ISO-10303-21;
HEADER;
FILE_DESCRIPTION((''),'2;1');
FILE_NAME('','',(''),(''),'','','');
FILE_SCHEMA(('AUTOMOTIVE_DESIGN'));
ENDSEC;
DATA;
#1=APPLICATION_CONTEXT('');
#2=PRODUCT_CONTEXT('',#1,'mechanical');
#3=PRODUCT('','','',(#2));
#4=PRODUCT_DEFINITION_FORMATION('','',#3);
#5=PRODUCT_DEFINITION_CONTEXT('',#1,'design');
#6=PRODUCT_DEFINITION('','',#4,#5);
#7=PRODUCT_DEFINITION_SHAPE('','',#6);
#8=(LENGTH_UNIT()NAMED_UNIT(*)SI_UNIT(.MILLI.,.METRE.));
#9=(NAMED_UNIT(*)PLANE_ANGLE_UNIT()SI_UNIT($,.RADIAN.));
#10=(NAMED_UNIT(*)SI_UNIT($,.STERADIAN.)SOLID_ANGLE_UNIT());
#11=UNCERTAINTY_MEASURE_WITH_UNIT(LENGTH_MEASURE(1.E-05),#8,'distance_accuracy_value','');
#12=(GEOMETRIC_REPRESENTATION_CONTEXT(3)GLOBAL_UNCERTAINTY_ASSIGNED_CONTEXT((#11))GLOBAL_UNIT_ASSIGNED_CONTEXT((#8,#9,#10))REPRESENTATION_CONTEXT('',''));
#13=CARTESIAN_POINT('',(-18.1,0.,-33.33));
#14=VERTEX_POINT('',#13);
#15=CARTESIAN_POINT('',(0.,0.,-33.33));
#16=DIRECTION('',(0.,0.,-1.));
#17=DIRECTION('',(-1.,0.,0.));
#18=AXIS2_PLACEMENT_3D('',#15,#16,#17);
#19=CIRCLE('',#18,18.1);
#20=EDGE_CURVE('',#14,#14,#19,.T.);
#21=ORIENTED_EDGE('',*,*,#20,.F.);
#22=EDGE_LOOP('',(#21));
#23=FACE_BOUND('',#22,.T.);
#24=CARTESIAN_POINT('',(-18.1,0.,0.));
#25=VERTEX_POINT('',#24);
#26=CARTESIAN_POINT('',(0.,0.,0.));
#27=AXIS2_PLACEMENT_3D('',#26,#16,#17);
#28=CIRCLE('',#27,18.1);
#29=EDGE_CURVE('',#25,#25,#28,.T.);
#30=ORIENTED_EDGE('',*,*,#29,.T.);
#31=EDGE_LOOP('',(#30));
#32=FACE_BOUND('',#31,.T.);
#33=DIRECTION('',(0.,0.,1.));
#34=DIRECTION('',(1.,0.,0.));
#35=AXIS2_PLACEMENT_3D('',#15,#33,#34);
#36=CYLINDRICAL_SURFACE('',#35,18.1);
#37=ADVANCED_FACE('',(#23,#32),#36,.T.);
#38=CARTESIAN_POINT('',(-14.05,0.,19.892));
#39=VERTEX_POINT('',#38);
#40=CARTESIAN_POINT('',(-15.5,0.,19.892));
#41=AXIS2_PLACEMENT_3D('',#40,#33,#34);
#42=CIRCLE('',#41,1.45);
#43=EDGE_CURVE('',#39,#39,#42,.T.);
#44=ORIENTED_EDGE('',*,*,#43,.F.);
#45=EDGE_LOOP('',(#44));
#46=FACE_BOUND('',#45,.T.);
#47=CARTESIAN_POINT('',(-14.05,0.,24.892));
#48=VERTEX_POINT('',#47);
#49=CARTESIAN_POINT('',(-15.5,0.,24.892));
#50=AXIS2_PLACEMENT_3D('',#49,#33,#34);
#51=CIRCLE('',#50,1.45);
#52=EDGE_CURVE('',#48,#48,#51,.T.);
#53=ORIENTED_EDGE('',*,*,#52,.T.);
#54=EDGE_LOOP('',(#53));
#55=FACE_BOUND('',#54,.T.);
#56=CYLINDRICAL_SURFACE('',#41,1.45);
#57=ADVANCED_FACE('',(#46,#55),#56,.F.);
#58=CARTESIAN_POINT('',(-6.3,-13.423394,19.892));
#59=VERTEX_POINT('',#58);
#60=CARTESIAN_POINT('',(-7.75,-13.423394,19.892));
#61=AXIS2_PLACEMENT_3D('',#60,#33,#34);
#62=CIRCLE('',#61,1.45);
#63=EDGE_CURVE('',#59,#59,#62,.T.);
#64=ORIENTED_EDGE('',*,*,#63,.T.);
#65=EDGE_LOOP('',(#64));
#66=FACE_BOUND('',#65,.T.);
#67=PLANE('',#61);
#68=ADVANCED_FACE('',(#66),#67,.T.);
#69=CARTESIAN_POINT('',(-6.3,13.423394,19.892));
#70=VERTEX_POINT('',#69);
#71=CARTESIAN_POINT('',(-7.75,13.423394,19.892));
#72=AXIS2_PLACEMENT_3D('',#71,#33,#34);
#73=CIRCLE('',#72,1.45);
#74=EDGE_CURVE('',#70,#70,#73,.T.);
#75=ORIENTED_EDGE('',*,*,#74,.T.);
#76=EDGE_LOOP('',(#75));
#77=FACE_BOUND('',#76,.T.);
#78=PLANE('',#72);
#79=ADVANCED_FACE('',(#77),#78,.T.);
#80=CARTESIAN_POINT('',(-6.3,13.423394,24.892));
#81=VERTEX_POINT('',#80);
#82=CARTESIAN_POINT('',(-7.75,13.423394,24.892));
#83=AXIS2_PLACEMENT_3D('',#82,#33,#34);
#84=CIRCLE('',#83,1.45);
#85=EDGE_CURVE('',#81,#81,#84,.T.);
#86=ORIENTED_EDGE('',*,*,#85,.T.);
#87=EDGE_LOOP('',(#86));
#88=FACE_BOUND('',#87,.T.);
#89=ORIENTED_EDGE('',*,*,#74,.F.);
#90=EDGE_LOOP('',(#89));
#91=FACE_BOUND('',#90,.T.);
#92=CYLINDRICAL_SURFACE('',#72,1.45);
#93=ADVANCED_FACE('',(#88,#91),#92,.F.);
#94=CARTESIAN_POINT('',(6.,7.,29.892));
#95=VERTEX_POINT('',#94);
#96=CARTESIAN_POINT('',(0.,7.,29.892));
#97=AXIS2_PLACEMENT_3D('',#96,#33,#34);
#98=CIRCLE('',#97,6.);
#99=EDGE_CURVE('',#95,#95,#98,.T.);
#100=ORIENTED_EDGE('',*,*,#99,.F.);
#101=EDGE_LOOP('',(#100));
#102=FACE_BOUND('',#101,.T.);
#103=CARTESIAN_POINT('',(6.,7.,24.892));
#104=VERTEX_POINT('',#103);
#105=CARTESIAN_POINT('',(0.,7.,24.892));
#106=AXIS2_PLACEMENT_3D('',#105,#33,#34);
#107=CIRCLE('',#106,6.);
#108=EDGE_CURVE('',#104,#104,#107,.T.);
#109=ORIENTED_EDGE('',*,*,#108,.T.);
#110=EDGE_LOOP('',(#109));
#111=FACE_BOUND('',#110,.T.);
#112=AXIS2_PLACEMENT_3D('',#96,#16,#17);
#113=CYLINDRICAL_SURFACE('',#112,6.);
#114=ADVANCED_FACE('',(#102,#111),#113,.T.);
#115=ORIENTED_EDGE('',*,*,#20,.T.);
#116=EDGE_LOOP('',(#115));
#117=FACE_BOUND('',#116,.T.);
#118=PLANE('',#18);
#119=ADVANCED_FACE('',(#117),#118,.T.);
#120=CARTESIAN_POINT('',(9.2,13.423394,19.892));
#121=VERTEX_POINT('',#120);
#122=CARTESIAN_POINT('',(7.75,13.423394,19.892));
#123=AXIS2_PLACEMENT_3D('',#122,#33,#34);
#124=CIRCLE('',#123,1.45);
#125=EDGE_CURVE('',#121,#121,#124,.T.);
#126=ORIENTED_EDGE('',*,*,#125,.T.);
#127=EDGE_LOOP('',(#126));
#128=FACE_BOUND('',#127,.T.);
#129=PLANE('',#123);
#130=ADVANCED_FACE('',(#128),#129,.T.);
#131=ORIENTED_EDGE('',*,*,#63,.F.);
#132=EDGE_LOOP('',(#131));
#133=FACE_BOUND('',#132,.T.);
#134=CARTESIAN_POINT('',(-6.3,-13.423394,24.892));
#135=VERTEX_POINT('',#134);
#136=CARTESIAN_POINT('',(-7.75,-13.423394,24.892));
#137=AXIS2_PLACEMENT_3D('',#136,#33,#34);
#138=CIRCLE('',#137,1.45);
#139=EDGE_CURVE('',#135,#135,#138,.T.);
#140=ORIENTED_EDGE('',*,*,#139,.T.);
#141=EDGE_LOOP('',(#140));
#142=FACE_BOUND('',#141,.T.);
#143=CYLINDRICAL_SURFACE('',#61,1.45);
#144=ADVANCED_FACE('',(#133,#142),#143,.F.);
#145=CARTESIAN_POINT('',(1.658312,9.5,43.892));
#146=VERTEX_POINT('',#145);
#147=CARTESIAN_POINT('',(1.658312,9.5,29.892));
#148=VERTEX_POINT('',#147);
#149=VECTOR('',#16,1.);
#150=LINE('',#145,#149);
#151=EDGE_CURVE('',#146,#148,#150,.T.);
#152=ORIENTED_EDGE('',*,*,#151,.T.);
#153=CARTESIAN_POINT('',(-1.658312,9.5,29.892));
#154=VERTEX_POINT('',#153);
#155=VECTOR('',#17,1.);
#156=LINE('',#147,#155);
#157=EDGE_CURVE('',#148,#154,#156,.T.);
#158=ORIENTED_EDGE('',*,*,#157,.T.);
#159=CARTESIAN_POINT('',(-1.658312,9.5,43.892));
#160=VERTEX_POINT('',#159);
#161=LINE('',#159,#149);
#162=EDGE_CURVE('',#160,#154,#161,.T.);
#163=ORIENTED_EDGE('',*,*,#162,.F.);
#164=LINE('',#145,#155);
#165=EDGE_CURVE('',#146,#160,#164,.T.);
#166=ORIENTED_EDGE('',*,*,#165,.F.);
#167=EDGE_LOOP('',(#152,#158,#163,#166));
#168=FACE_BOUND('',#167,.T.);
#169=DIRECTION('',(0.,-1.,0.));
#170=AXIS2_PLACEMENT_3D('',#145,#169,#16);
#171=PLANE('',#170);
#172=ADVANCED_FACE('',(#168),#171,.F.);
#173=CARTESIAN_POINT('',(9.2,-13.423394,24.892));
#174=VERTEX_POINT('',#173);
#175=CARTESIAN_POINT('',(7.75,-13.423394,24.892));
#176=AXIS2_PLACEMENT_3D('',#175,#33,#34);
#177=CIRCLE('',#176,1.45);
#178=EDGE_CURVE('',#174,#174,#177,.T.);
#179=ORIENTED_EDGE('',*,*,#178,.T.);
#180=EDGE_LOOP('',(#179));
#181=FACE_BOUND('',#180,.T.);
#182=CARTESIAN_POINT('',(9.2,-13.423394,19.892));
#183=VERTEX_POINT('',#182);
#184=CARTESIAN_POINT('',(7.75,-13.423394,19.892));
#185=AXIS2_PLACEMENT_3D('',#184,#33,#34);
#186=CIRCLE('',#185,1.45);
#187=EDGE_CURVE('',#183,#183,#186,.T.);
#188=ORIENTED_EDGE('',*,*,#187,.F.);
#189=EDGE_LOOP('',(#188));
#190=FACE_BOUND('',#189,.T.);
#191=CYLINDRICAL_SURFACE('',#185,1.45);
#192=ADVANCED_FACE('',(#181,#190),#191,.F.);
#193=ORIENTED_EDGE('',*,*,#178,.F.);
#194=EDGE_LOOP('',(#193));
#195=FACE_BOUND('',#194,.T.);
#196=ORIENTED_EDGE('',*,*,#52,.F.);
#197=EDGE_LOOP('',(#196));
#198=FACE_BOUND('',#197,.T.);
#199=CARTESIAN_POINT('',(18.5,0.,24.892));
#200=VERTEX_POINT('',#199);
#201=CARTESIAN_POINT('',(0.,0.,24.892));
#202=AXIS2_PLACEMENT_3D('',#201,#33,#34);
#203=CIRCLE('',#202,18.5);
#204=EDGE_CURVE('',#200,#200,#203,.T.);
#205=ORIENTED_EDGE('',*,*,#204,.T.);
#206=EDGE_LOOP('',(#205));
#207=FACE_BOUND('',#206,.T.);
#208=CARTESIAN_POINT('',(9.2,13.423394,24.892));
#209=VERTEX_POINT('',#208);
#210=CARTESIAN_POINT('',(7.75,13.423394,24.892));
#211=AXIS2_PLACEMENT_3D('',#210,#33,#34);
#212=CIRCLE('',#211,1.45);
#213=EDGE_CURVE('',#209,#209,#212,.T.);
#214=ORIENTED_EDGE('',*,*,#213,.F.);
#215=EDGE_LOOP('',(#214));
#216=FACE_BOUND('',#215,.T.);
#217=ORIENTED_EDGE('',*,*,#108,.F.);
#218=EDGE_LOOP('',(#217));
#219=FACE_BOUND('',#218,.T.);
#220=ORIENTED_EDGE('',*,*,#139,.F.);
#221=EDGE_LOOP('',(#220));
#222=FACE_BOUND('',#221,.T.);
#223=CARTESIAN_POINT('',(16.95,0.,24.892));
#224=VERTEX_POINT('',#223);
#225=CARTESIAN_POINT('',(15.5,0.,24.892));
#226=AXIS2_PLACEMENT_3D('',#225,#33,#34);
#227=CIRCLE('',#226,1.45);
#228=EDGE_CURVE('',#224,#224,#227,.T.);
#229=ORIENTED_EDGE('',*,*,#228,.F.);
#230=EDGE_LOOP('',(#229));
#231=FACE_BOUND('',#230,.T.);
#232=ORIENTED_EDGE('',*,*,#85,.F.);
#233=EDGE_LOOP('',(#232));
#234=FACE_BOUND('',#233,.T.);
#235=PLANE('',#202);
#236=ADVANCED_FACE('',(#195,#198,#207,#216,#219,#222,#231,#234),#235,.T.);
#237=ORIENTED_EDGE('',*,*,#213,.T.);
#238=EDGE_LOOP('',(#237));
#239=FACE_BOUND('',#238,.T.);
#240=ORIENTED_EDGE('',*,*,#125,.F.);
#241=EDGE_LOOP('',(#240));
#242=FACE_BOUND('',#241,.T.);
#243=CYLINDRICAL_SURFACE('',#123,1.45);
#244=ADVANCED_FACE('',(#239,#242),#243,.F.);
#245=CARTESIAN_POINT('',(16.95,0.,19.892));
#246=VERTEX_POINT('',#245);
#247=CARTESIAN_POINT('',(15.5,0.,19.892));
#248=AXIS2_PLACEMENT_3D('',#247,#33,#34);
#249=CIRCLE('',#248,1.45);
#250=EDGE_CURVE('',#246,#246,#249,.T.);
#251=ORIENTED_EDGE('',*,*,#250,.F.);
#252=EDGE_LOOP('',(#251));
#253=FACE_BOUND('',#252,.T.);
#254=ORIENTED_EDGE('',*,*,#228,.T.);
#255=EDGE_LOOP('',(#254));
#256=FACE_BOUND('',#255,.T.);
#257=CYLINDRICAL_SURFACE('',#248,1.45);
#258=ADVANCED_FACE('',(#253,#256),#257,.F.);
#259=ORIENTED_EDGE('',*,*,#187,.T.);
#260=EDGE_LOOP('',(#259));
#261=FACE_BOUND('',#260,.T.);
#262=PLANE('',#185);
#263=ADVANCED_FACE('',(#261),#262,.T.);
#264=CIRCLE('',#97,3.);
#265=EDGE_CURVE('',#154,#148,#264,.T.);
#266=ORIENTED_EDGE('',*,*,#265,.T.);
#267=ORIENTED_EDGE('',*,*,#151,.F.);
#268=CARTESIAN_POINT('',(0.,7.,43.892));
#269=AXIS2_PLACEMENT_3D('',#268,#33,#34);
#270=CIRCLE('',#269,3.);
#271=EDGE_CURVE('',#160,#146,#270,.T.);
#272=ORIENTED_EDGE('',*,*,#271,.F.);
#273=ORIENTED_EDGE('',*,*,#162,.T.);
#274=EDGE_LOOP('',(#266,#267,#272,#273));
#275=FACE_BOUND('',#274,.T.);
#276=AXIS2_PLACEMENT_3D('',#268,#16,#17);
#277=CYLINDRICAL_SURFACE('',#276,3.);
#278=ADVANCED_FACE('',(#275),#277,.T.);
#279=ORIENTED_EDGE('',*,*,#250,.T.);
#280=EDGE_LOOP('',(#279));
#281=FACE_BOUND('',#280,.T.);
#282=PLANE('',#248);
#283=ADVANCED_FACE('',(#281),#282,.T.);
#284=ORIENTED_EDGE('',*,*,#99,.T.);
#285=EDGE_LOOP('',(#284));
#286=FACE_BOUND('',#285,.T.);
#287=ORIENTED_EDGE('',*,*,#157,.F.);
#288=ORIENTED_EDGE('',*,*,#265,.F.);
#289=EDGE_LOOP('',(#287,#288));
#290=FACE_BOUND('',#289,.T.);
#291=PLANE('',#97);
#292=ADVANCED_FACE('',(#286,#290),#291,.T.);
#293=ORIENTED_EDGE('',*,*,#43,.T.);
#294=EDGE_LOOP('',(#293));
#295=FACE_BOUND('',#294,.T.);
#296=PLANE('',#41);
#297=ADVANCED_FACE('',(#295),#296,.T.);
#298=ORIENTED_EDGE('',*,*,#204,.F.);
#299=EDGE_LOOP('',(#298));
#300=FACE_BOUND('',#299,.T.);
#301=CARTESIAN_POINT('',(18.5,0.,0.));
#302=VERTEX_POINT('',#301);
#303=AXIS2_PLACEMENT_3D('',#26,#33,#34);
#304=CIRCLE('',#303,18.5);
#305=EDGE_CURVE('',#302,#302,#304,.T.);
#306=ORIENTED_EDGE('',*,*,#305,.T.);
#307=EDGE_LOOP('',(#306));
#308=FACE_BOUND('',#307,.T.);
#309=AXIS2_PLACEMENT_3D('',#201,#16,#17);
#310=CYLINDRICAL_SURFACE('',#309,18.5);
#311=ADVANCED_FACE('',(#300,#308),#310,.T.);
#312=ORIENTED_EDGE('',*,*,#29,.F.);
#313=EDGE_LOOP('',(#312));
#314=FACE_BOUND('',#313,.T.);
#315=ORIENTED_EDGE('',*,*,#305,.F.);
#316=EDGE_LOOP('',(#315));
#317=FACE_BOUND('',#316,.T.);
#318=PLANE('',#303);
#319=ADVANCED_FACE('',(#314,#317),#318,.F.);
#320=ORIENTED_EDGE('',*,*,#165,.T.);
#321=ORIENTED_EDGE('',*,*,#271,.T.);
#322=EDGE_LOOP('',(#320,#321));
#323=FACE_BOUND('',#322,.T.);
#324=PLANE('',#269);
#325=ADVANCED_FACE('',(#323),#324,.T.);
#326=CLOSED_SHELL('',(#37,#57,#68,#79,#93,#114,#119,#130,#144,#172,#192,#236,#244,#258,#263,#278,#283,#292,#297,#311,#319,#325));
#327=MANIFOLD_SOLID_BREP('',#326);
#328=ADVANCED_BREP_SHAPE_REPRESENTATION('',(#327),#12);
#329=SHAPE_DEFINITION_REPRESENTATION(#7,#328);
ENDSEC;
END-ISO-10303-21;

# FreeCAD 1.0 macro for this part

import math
import FreeCAD as App
import Part
import Sketcher
from FreeCAD import Vector
Q = App.Units.Quantity

doc = App.newDocument("Part")
body = doc.addObject("PartDesign::Body", "Body")

sketch1 = doc.addObject("Sketcher::SketchObject", "Sketch")
body.addObject(sketch1)
sketch1.AttachmentSupport = (doc.XY_Plane, [""])
sketch1.MapMode = "FlatFace"
sketch1.addGeometry(Part.Circle(Vector(0, 0, 0), Vector(0, 0, 1), 18), False)
sketch1.addConstraint(Sketcher.Constraint("Coincident", 0, 3, -1, 1))
sketch1.addConstraint(Sketcher.Constraint("Diameter", 0, Q("37 mm")))
pad1 = doc.addObject("PartDesign::Pad", "Pad")
body.addObject(pad1)
pad1.Profile = sketch1
pad1.Length = 24.892

sketch2 = doc.addObject("Sketcher::SketchObject", "Sketch001")
body.addObject(sketch2)
sketch2.AttachmentSupport = (doc.XY_Plane, [""])
sketch2.MapMode = "FlatFace"
sketch2.addGeometry(Part.Circle(Vector(0, 0, 0), Vector(0, 0, 1), 18), False)
sketch2.addConstraint(Sketcher.Constraint("Coincident", 0, 3, -1, 1))
sketch2.addConstraint(Sketcher.Constraint("Diameter", 0, Q("36.2 mm")))
pad2 = doc.addObject("PartDesign::Pad", "Pad001")
body.addObject(pad2)
pad2.Profile = sketch2
pad2.Length = 33.33
pad2.Reversed = True

sketch3 = doc.addObject("Sketcher::SketchObject", "Sketch002")
body.addObject(sketch3)
sketch3.AttachmentSupport = (doc.XY_Plane, [""])
sketch3.MapMode = "FlatFace"
sketch3.AttachmentOffset = App.Placement(Vector(0, 0, 24.892), App.Rotation())
sketch3.addGeometry(Part.Circle(Vector(0, 7, 0), Vector(0, 0, 1), 6), False)
sketch3.addConstraint(Sketcher.Constraint("PointOnObject", 0, 3, -2))
sketch3.addConstraint(Sketcher.Constraint("Diameter", 0, Q("12 mm")))
sketch3.addConstraint(Sketcher.Constraint("DistanceY", -1, 1, 0, 3, Q("7 mm")))
pad3 = doc.addObject("PartDesign::Pad", "Pad002")
body.addObject(pad3)
pad3.Profile = sketch3
pad3.Length = 5

sketch4 = doc.addObject("Sketcher::SketchObject", "Sketch003")
body.addObject(sketch4)
sketch4.AttachmentSupport = (doc.XY_Plane, [""])
sketch4.MapMode = "FlatFace"
sketch4.AttachmentOffset = App.Placement(Vector(0, 0, 29.892), App.Rotation())
sketch4.addGeometry(Part.LineSegment(Vector(1.7, 9.5, 0), Vector(-1.7, 9.5, 0)), False)
sketch4.addGeometry(Part.ArcOfCircle(Part.Circle(Vector(0, 7, 0), Vector(0, 0, 1), 3), math.radians(124), math.radians(416)), False)
sketch4.addConstraint(Sketcher.Constraint("Coincident", 0, 1, 1, 2))
sketch4.addConstraint(Sketcher.Constraint("Coincident", 1, 1, 0, 2))
sketch4.addConstraint(Sketcher.Constraint("Horizontal", 0))
sketch4.addConstraint(Sketcher.Constraint("PointOnObject", 1, 3, -2))
sketch4.addConstraint(Sketcher.Constraint("Radius", 1, Q("3 mm")))
sketch4.addConstraint(Sketcher.Constraint("DistanceY", -1, 1, 1, 3, Q("7 mm")))
sketch4.addConstraint(Sketcher.Constraint("DistanceY", -1, 1, 0, 1, Q("9.5 mm")))
pad4 = doc.addObject("PartDesign::Pad", "Pad003")
body.addObject(pad4)
pad4.Profile = sketch4
pad4.Length = 14

sketch5 = doc.addObject("Sketcher::SketchObject", "Sketch004")
body.addObject(sketch5)
sketch5.AttachmentSupport = (doc.XY_Plane, [""])
sketch5.MapMode = "FlatFace"
sketch5.AttachmentOffset = App.Placement(Vector(0, 0, 24.892), App.Rotation())
sketch5.addGeometry(Part.Circle(Vector(15.5, 0, 0), Vector(0, 0, 1), 1.4), False)
sketch5.addGeometry(Part.Circle(Vector(7.8, -13.4, 0), Vector(0, 0, 1), 1.4), False)
sketch5.addGeometry(Part.Circle(Vector(-7.8, -13.4, 0), Vector(0, 0, 1), 1.4), False)
sketch5.addGeometry(Part.Circle(Vector(-15.5, 0, 0), Vector(0, 0, 1), 1.4), False)
sketch5.addGeometry(Part.Circle(Vector(-7.8, 13.4, 0), Vector(0, 0, 1), 1.4), False)
sketch5.addGeometry(Part.Circle(Vector(7.8, 13.4, 0), Vector(0, 0, 1), 1.4), False)
sketch5.addConstraint(Sketcher.Constraint("Equal", 0, 1))
sketch5.addConstraint(Sketcher.Constraint("Equal", 1, 2))
sketch5.addConstraint(Sketcher.Constraint("Equal", 2, 3))
sketch5.addConstraint(Sketcher.Constraint("Equal", 3, 4))
sketch5.addConstraint(Sketcher.Constraint("Equal", 4, 5))
sketch5.addConstraint(Sketcher.Constraint("Symmetric", 0, 3, 3, 3, -1, 1))
sketch5.addConstraint(Sketcher.Constraint("Symmetric", 1, 3, 4, 3, -1, 1))
sketch5.addConstraint(Sketcher.Constraint("Symmetric", 2, 3, 5, 3, -1, 1))
sketch5.addConstraint(Sketcher.Constraint("Symmetric", 1, 3, 2, 3, -2))
sketch5.addConstraint(Sketcher.Constraint("PointOnObject", 0, 3, -1))
sketch5.addConstraint(Sketcher.Constraint("Diameter", 0, Q("2.9 mm")))
sketch5.addConstraint(Sketcher.Constraint("DistanceX", 3, 3, 0, 3, Q("31 mm")))
sketch5.addConstraint(Sketcher.Constraint("DistanceX", 2, 3, 1, 3, Q("15.5 mm")))
sketch5.addConstraint(Sketcher.Constraint("DistanceY", 1, 3, -1, 1, Q("13.423394 mm")))
pocket1 = doc.addObject("PartDesign::Pocket", "Pocket")
body.addObject(pocket1)
pocket1.Profile = sketch5
pocket1.Length = 5

doc.recompute()
